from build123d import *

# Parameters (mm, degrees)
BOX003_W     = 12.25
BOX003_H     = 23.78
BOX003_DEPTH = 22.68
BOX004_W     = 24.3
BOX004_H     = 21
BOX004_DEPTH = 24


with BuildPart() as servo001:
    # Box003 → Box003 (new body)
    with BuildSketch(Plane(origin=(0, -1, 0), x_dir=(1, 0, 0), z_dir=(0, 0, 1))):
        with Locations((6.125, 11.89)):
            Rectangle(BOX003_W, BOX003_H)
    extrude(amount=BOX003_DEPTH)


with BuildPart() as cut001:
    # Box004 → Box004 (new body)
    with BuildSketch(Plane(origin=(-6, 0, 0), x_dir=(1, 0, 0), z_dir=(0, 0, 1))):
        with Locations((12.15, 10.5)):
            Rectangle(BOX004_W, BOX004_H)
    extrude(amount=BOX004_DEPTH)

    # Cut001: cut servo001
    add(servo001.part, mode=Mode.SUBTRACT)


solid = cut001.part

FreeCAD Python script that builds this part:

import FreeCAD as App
import Part
import Sketcher
from FreeCAD import Vector

doc = App.newDocument("Part")
body = doc.addObject("PartDesign::Body", "Body")

# Sketch on XY plane
sketch1 = body.newObject("Sketcher::SketchObject", "Sketch")
sketch1.AttachmentSupport = (doc.getObject("XY_Plane"), [""])
sketch1.MapMode = "FlatFace"
sketch1.addGeometry([
    Part.LineSegment(Vector(0, 23, 0), Vector(0, -1, 0)),
    Part.LineSegment(Vector(0, -1, 0), Vector(12, -1, 0)),
    Part.LineSegment(Vector(12, -1, 0), Vector(12, 23, 0)),
    Part.LineSegment(Vector(12, 23, 0), Vector(0, 23, 0)),
], False)
sketch1.addConstraint([
    Sketcher.Constraint("Coincident", 0, 2, 1, 1),
    Sketcher.Constraint("Coincident", 1, 2, 2, 1),
    Sketcher.Constraint("Coincident", 2, 2, 3, 1),
    Sketcher.Constraint("Coincident", 3, 2, 0, 1),
    Sketcher.Constraint("Vertical", 0),
    Sketcher.Constraint("Horizontal", 1),
    Sketcher.Constraint("Vertical", 2),
    Sketcher.Constraint("Horizontal", 3),
    Sketcher.Constraint("PointOnObject", 0, 2, -2),
    Sketcher.Constraint("DistanceY", 0, 2, -1, 1, 1.0),
    Sketcher.Constraint("DistanceX", 1, 1, 1, 2, 12.25),
    Sketcher.Constraint("DistanceY", 0, 2, 0, 1, 23.78),
])
pad1 = body.newObject("PartDesign::Pad", "Pad")
pad1.Profile = sketch1
pad1.Length = 22.68
body2 = doc.addObject("PartDesign::Body", "Body001")

# Sketch on XY plane
sketch2 = body2.newObject("Sketcher::SketchObject", "Sketch001")
sketch2.AttachmentSupport = (doc.getObject("XY_Plane001"), [""])
sketch2.MapMode = "FlatFace"
sketch2.addGeometry([
    Part.LineSegment(Vector(-6, 21, 0), Vector(-6, 0, 0)),
    Part.LineSegment(Vector(-6, 0, 0), Vector(18, 0, 0)),
    Part.LineSegment(Vector(18, 0, 0), Vector(18, 21, 0)),
    Part.LineSegment(Vector(18, 21, 0), Vector(-6, 21, 0)),
], False)
sketch2.addConstraint([
    Sketcher.Constraint("Coincident", 0, 2, 1, 1),
    Sketcher.Constraint("Coincident", 1, 2, 2, 1),
    Sketcher.Constraint("Coincident", 2, 2, 3, 1),
    Sketcher.Constraint("Coincident", 3, 2, 0, 1),
    Sketcher.Constraint("Vertical", 0),
    Sketcher.Constraint("Horizontal", 1),
    Sketcher.Constraint("Vertical", 2),
    Sketcher.Constraint("Horizontal", 3),
    Sketcher.Constraint("PointOnObject", 0, 2, -1),
    Sketcher.Constraint("DistanceY", 0, 2, 0, 1, 21.0),
    Sketcher.Constraint("DistanceX", 1, 1, 1, 2, 24.3),
    Sketcher.Constraint("DistanceX", 0, 2, -1, 1, 6.0),
])
pad2 = body2.newObject("PartDesign::Pad", "Pad001")
pad2.Profile = sketch2
pad2.Length = 24
doc.recompute()

boolean = body2.newObject("PartDesign::Boolean", "Boolean")
boolean.Type = "Cut"
boolean.addObjects([body])

doc.recompute()
